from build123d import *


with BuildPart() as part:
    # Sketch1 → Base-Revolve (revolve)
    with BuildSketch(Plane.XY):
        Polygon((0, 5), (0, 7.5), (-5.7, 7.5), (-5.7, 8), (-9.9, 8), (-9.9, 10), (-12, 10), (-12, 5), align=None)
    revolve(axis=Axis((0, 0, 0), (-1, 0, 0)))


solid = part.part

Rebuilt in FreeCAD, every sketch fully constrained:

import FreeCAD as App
import Part
import Sketcher
from FreeCAD import Vector
Q = App.Units.Quantity


def add_polygon(sketch, points):
    """Adds a closed chain of lines whose ends are joined by coincident constraints."""
    first, n = sketch.GeometryCount, len(points)
    for a, b in zip(points, points[1:] + points[:1]):
        sketch.addGeometry(Part.LineSegment(App.Vector(*a, 0), App.Vector(*b, 0)), False)
    for i in range(n):
        sketch.addConstraint(Sketcher.Constraint("Coincident", first + i, 2, first + (i + 1) % n, 1))

doc = App.newDocument("Part")
body = doc.addObject("PartDesign::Body", "Body")

# Sketch on XY plane
sketch1 = body.newObject("Sketcher::SketchObject", "Sketch")
sketch1.AttachmentSupport = (doc.getObject("XY_Plane"), [""])
sketch1.MapMode = "FlatFace"
add_polygon(sketch1, [(0, 5), (0, 7.5), (-5.7, 7.5), (-5.7, 8), (-9.9, 8), (-9.9, 10), (-12, 10), (-12, 5)])  # lines 0-7
sketch1.addConstraint([
    Sketcher.Constraint("Vertical", 0),
    Sketcher.Constraint("Horizontal", 1),
    Sketcher.Constraint("Vertical", 2),
    Sketcher.Constraint("Horizontal", 3),
    Sketcher.Constraint("Vertical", 4),
    Sketcher.Constraint("Horizontal", 5),
    Sketcher.Constraint("Vertical", 6),
    Sketcher.Constraint("Horizontal", 7),
    Sketcher.Constraint("PointOnObject", 0, 2, -2),
    Sketcher.Constraint("DistanceX", 7, 1, 7, 2, Q("12 mm")),
    Sketcher.Constraint("DistanceY", 4, 1, 4, 2, Q("2 mm")),
    Sketcher.Constraint("DistanceY", 6, 2, 6, 1, Q("5 mm")),
    Sketcher.Constraint("DistanceX", 1, 2, 1, 1, Q("5.7 mm")),
    Sketcher.Constraint("DistanceX", 3, 2, 3, 1, Q("4.2 mm")),
    Sketcher.Constraint("DistanceY", 0, 1, 0, 2, Q("2.5 mm")),
    Sketcher.Constraint("DistanceY", -1, 1, 2, 2, Q("8 mm")),
])
revolution = body.newObject("PartDesign::Revolution", "Revolution")
revolution.Profile = sketch1
revolution.ReferenceAxis = (sketch1, ["H_Axis"])
revolution.Angle = 360

doc.recompute()
